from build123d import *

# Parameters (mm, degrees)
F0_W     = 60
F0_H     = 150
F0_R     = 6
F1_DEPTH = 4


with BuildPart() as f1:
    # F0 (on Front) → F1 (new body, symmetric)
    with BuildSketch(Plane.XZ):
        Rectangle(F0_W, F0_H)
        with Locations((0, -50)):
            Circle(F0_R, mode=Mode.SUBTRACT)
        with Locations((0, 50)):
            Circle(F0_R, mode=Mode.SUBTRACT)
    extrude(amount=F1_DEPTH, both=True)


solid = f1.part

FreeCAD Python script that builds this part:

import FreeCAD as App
import Part
import Sketcher

V = App.Vector


def add_polygon(sketch, points):
    """Adds a closed chain of lines whose ends are joined by coincident constraints."""
    first, n = sketch.GeometryCount, len(points)
    for a, b in zip(points, points[1:] + points[:1]):
        sketch.addGeometry(Part.LineSegment(App.Vector(*a, 0), App.Vector(*b, 0)), False)
    for i in range(n):
        sketch.addConstraint(Sketcher.Constraint("Coincident", first + i, 2, first + (i + 1) % n, 1))

doc = App.newDocument("Part")
body = doc.addObject("PartDesign::Body", "Body")

sketch1 = body.newObject("Sketcher::SketchObject", "Sketch")
sketch1.AttachmentSupport = (doc.getObject("XZ_Plane"), [""])
sketch1.MapMode = "FlatFace"
add_polygon(sketch1, [(-30, 75), (-30, -75), (30, -75), (30, 75)])
sketch1.addGeometry(Part.Circle(V(0, -50, 0), V(0, 0, 1), 6), False)
sketch1.addGeometry(Part.Circle(V(0, 50, 0), V(0, 0, 1), 6), False)
sketch1.addConstraint([
    Sketcher.Constraint("Vertical", 0),
    Sketcher.Constraint("Horizontal", 1),
    Sketcher.Constraint("Vertical", 2),
    Sketcher.Constraint("Horizontal", 3),
    Sketcher.Constraint("Equal", 4, 5),
    Sketcher.Constraint("Symmetric", 4, 3, 5, 3, -1, 1),
    Sketcher.Constraint("Symmetric", 0, 2, 2, 2, -1, 1),
    Sketcher.Constraint("PointOnObject", 4, 3, -2),
    Sketcher.Constraint("Diameter", 4, 12.0),
    Sketcher.Constraint("DistanceX", 1, 1, 1, 2, 60.0),
    Sketcher.Constraint("DistanceY", 0, 2, 0, 1, 150.0),
    Sketcher.Constraint("DistanceY", 4, 3, -1, 1, 50.0),
])
pad1 = body.newObject("PartDesign::Pad", "Pad")
pad1.Profile = sketch1
pad1.Length = 8
pad1.Midplane = True

doc.recompute()
